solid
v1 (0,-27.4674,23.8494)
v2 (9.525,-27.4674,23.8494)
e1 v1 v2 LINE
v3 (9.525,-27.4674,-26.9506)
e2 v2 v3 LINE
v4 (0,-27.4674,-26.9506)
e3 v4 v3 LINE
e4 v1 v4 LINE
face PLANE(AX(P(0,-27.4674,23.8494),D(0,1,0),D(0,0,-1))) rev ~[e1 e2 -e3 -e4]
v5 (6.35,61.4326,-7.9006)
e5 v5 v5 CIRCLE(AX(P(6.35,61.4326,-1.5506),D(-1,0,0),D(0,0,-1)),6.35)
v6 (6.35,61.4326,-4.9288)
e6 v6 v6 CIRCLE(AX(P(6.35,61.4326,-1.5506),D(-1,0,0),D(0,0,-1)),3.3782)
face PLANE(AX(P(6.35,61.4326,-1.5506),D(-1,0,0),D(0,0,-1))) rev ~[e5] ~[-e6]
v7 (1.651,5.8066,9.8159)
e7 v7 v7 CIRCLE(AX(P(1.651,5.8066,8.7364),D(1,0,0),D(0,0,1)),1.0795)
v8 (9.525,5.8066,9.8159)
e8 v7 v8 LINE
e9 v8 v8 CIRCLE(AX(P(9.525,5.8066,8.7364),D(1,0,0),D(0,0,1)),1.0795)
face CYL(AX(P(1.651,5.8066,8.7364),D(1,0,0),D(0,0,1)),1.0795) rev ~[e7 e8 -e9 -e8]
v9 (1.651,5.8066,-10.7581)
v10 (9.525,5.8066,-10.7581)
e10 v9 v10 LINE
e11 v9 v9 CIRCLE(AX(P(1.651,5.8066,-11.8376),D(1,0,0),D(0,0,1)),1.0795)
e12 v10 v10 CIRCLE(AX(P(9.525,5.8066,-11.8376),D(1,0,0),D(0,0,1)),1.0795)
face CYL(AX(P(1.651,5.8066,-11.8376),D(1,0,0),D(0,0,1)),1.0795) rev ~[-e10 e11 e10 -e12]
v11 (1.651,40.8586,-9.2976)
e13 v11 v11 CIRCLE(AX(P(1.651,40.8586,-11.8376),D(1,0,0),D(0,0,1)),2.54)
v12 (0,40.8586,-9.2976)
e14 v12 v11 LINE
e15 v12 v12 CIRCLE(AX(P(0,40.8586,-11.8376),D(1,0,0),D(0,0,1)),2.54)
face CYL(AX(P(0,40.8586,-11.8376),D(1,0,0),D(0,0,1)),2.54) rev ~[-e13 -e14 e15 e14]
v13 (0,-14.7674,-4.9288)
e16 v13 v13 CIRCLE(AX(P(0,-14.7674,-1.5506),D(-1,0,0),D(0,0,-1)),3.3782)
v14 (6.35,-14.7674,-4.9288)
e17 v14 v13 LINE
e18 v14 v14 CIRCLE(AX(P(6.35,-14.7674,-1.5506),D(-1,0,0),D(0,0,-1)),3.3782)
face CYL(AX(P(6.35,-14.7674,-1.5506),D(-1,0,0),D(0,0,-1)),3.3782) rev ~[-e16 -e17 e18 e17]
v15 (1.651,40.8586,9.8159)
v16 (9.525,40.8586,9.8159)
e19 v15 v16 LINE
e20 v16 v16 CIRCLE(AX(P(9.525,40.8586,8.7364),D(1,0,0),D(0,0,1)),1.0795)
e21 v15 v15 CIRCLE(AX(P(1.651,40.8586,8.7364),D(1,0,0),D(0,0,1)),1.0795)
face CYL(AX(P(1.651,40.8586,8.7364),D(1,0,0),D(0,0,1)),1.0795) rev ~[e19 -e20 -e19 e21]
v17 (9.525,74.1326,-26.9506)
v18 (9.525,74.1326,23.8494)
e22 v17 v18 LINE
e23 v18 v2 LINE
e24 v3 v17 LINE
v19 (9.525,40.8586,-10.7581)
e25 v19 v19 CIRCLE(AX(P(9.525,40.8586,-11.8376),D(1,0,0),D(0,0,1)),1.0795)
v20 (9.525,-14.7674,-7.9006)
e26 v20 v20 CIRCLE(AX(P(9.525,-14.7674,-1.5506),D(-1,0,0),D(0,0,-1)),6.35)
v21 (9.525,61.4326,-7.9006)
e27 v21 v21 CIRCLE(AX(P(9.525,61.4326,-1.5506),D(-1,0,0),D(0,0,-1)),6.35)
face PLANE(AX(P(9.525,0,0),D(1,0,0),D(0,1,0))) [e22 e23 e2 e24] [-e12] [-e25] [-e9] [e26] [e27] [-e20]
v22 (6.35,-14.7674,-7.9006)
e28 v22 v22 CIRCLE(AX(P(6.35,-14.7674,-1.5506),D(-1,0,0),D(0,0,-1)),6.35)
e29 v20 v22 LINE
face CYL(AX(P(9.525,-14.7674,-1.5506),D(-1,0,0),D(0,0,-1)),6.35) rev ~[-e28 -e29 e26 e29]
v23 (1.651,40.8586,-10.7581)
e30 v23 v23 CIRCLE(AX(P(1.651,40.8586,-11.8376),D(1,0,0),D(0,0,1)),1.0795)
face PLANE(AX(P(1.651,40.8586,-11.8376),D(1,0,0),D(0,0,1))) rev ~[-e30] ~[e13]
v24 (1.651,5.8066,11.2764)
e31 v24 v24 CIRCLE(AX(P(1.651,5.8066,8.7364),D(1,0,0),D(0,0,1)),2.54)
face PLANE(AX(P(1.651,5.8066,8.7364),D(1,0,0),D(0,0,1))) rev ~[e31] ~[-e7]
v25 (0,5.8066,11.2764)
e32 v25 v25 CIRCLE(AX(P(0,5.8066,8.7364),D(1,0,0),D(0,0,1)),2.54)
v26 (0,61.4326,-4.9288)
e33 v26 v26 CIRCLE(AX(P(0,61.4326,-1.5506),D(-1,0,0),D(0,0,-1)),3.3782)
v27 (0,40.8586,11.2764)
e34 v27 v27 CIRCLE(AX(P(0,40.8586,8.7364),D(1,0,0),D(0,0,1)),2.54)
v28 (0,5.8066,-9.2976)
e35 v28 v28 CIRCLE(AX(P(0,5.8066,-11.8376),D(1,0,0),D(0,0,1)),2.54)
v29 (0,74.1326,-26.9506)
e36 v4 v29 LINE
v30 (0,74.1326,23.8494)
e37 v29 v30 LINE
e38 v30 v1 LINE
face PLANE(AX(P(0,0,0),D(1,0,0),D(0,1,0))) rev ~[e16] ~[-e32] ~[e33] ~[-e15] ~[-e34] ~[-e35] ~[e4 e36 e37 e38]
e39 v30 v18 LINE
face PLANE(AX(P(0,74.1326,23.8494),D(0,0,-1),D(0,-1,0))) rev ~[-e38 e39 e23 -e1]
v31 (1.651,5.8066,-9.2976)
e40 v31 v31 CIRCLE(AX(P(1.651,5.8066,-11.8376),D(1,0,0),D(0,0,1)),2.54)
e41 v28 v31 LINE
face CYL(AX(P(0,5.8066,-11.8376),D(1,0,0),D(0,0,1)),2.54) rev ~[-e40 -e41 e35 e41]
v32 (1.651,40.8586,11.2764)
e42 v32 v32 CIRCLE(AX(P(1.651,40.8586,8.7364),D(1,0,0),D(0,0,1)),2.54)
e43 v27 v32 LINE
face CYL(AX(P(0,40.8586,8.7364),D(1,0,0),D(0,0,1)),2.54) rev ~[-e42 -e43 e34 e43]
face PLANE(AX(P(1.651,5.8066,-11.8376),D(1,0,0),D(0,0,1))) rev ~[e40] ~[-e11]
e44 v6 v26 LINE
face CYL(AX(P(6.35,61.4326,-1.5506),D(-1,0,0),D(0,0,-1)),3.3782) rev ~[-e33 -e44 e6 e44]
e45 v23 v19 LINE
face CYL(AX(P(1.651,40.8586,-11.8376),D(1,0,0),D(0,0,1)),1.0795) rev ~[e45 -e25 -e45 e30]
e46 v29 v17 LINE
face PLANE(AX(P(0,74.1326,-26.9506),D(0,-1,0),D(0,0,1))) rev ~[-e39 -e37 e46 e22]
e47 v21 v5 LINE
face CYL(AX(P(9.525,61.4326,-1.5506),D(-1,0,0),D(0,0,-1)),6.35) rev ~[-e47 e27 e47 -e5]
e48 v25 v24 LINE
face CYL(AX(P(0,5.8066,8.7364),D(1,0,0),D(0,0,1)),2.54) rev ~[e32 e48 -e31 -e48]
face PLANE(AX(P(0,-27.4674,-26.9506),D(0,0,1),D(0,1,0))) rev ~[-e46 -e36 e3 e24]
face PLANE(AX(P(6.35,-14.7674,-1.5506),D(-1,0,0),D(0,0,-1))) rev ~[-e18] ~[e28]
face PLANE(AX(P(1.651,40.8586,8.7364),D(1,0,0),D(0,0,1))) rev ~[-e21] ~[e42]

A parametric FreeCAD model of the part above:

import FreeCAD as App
import Part
import Sketcher

V = App.Vector
Q = App.Units.Quantity

doc = App.newDocument("Part")
params = doc.addObject("Spreadsheet::Sheet", "Params")
for row, (alias, value) in enumerate([
    ("sketch1_width", "4 in"),
    ("sketch1_height", "2 in"),
    ("pad1_length", "0.375 in"),
    ("sketch2_diameter", "0.266 in"),
    ("hole_diameter", "0.266 in"),
    ("hole_cbore_diameter", "0.5 in"),
    ("hole_cbore_depth", "0.125 in"),
    ("sketch3_diameter", "0.266 in"),
    ("hole2_diameter", "0.266 in"),
    ("hole2_cbore_diameter", "0.5 in"),
    ("hole2_cbore_depth", "0.125 in"),
    ("sketch4_diameter", "0.085 in"),
    ("hole3_diameter", "0.085 in"),
    ("hole3_cbore_diameter", "0.2 in"),
    ("hole3_cbore_depth", "0.065 in"),
    ("sketch5_diameter", "0.085 in"),
    ("hole4_diameter", "0.085 in"),
    ("hole4_cbore_diameter", "0.2 in"),
    ("hole4_cbore_depth", "0.065 in"),
    ("sketch6_diameter", "0.085 in"),
    ("hole5_diameter", "0.085 in"),
    ("hole5_cbore_diameter", "0.2 in"),
    ("hole5_cbore_depth", "0.065 in"),
    ("sketch7_diameter", "0.085 in"),
    ("hole6_diameter", "0.085 in"),
    ("hole6_cbore_diameter", "0.2 in"),
    ("hole6_cbore_depth", "0.065 in"),
], start=1):
    params.set(f"A{row}", alias)
    params.set(f"B{row}", "=" + value)
    params.setAlias(f"B{row}", alias)

body = doc.addObject("PartDesign::Body", "Body")

sketch1 = body.newObject("Sketcher::SketchObject", "Sketch")
sketch1.AttachmentSupport = (doc.getObject("YZ_Plane"), [""])
sketch1.MapMode = "FlatFace"
sketch1.addGeometry(Part.LineSegment(V(74.1326, -26.9506, 0), V(74.1326, 23.8494, 0)), False)
sketch1.addGeometry(Part.LineSegment(V(74.1326, 23.8494, 0), V(-27.4674, 23.8494, 0)), False)
sketch1.addGeometry(Part.LineSegment(V(-27.4674, 23.8494, 0), V(-27.4674, -26.9506, 0)), False)
sketch1.addGeometry(Part.LineSegment(V(-27.4674, -26.9506, 0), V(74.1326, -26.9506, 0)), False)
sketch1.addConstraint(Sketcher.Constraint("Coincident", 0, 2, 1, 1))
sketch1.addConstraint(Sketcher.Constraint("Coincident", 1, 2, 2, 1))
sketch1.addConstraint(Sketcher.Constraint("Coincident", 2, 2, 3, 1))
sketch1.addConstraint(Sketcher.Constraint("Coincident", 3, 2, 0, 1))
sketch1.addConstraint(Sketcher.Constraint("Vertical", 0))
sketch1.addConstraint(Sketcher.Constraint("Horizontal", 1))
sketch1.addConstraint(Sketcher.Constraint("Vertical", 2))
sketch1.addConstraint(Sketcher.Constraint("Horizontal", 3))
sketch1.addConstraint(Sketcher.Constraint("DistanceX", 1, 2, 1, 1, Q("4 in")))
sketch1.addConstraint(Sketcher.Constraint("DistanceY", 0, 1, 0, 2, Q("2 in")))
sketch1.addConstraint(Sketcher.Constraint("DistanceX", -1, 1, 0, 2, Q("2.9186 in")))
sketch1.addConstraint(Sketcher.Constraint("DistanceY", -1, 1, 0, 2, 23.8494))
sketch1.setExpression("Constraints[8]", "Params.sketch1_width")
sketch1.setExpression("Constraints[9]", "Params.sketch1_height")
pad1 = body.newObject("PartDesign::Pad", "Pad")
pad1.Profile = sketch1
pad1.setExpression("Length", "Params.pad1_length")

sketch2 = body.newObject("Sketcher::SketchObject", "Sketch001")
sketch2.AttachmentSupport = (doc.getObject("YZ_Plane"), [""])
sketch2.MapMode = "FlatFace"
sketch2.AttachmentOffset = App.Placement(V(0, 0, 0.375 * 25.4), App.Rotation())
sketch2.addGeometry(Part.Circle(V(61.4326, -1.5506, 0), V(0, 0, 1), 3.3782), False)
sketch2.addConstraint(Sketcher.Constraint("Diameter", 0, Q("0.266 in")))
sketch2.addConstraint(Sketcher.Constraint("DistanceX", -1, 1, 0, 3, Q("2.4186 in")))
sketch2.addConstraint(Sketcher.Constraint("DistanceY", 0, 3, -1, 1, 1.5506))
sketch2.setExpression("Constraints[0]", "Params.sketch2_diameter")
doc.recompute()
hole = body.newObject("PartDesign::Hole", "Hole")
hole.Profile = sketch2
hole.ThreadType = "None"
hole.setExpression("Diameter", "Params.hole_diameter")
hole.DepthType = "ThroughAll"
hole.HoleCutType = "Counterbore"
hole.setExpression("HoleCutDiameter", "Params.hole_cbore_diameter")
hole.setExpression("HoleCutDepth", "Params.hole_cbore_depth")

sketch3 = body.newObject("Sketcher::SketchObject", "Sketch002")
sketch3.AttachmentSupport = (doc.getObject("YZ_Plane"), [""])
sketch3.MapMode = "FlatFace"
sketch3.AttachmentOffset = App.Placement(V(0, 0, 0.375 * 25.4), App.Rotation())
sketch3.addGeometry(Part.Circle(V(-14.7674, -1.5506, 0), V(0, 0, 1), 3.3782), False)
sketch3.addConstraint(Sketcher.Constraint("Diameter", 0, Q("0.266 in")))
sketch3.addConstraint(Sketcher.Constraint("DistanceX", 0, 3, -1, 1, Q("0.5814 in")))
sketch3.addConstraint(Sketcher.Constraint("DistanceY", 0, 3, -1, 1, 1.5506))
sketch3.setExpression("Constraints[0]", "Params.sketch3_diameter")
doc.recompute()
hole2 = body.newObject("PartDesign::Hole", "Hole001")
hole2.Profile = sketch3
hole2.ThreadType = "None"
hole2.setExpression("Diameter", "Params.hole2_diameter")
hole2.DepthType = "ThroughAll"
hole2.HoleCutType = "Counterbore"
hole2.setExpression("HoleCutDiameter", "Params.hole2_cbore_diameter")
hole2.setExpression("HoleCutDepth", "Params.hole2_cbore_depth")

sketch4 = body.newObject("Sketcher::SketchObject", "Sketch003")
sketch4.AttachmentSupport = (doc.getObject("YZ_Plane"), [""])
sketch4.MapMode = "FlatFace"
sketch4.addGeometry(Part.Circle(V(40.8586, 8.7364, 0), V(0, 0, 1), 1.0795), False)
sketch4.addConstraint(Sketcher.Constraint("Diameter", 0, Q("0.085 in")))
sketch4.addConstraint(Sketcher.Constraint("DistanceX", -1, 1, 0, 3, Q("1.6086 in")))
sketch4.addConstraint(Sketcher.Constraint("DistanceY", -1, 1, 0, 3, 8.7364))
sketch4.setExpression("Constraints[0]", "Params.sketch4_diameter")
doc.recompute()
hole3 = body.newObject("PartDesign::Hole", "Hole002")
hole3.Profile = sketch4
hole3.ThreadType = "None"
hole3.setExpression("Diameter", "Params.hole3_diameter")
hole3.DepthType = "ThroughAll"
hole3.HoleCutType = "Counterbore"
hole3.setExpression("HoleCutDiameter", "Params.hole3_cbore_diameter")
hole3.setExpression("HoleCutDepth", "Params.hole3_cbore_depth")
hole3.Reversed = True

sketch5 = body.newObject("Sketcher::SketchObject", "Sketch004")
sketch5.AttachmentSupport = (doc.getObject("YZ_Plane"), [""])
sketch5.MapMode = "FlatFace"
sketch5.addGeometry(Part.Circle(V(5.8066, 8.7364, 0), V(0, 0, 1), 1.0795), False)
sketch5.addConstraint(Sketcher.Constraint("Diameter", 0, Q("0.085 in")))
sketch5.addConstraint(Sketcher.Constraint("DistanceX", -1, 1, 0, 3, Q("0.2286 in")))
sketch5.addConstraint(Sketcher.Constraint("DistanceY", -1, 1, 0, 3, 8.7364))
sketch5.setExpression("Constraints[0]", "Params.sketch5_diameter")
doc.recompute()
hole4 = body.newObject("PartDesign::Hole", "Hole003")
hole4.Profile = sketch5
hole4.ThreadType = "None"
hole4.setExpression("Diameter", "Params.hole4_diameter")
hole4.DepthType = "ThroughAll"
hole4.HoleCutType = "Counterbore"
hole4.setExpression("HoleCutDiameter", "Params.hole4_cbore_diameter")
hole4.setExpression("HoleCutDepth", "Params.hole4_cbore_depth")
hole4.Reversed = True

sketch6 = body.newObject("Sketcher::SketchObject", "Sketch005")
sketch6.AttachmentSupport = (doc.getObject("YZ_Plane"), [""])
sketch6.MapMode = "FlatFace"
sketch6.addGeometry(Part.Circle(V(40.8586, -11.8376, 0), V(0, 0, 1), 1.0795), False)
sketch6.addConstraint(Sketcher.Constraint("Diameter", 0, Q("0.085 in")))
sketch6.addConstraint(Sketcher.Constraint("DistanceX", -1, 1, 0, 3, Q("1.6086 in")))
sketch6.addConstraint(Sketcher.Constraint("DistanceY", 0, 3, -1, 1, 11.8376))
sketch6.setExpression("Constraints[0]", "Params.sketch6_diameter")
doc.recompute()
hole5 = body.newObject("PartDesign::Hole", "Hole004")
hole5.Profile = sketch6
hole5.ThreadType = "None"
hole5.setExpression("Diameter", "Params.hole5_diameter")
hole5.DepthType = "ThroughAll"
hole5.HoleCutType = "Counterbore"
hole5.setExpression("HoleCutDiameter", "Params.hole5_cbore_diameter")
hole5.setExpression("HoleCutDepth", "Params.hole5_cbore_depth")
hole5.Reversed = True

sketch7 = body.newObject("Sketcher::SketchObject", "Sketch006")
sketch7.AttachmentSupport = (doc.getObject("YZ_Plane"), [""])
sketch7.MapMode = "FlatFace"
sketch7.addGeometry(Part.Circle(V(5.8066, -11.8376, 0), V(0, 0, 1), 1.0795), False)
sketch7.addConstraint(Sketcher.Constraint("Diameter", 0, Q("0.085 in")))
sketch7.addConstraint(Sketcher.Constraint("DistanceX", -1, 1, 0, 3, Q("0.2286 in")))
sketch7.addConstraint(Sketcher.Constraint("DistanceY", 0, 3, -1, 1, 11.8376))
sketch7.setExpression("Constraints[0]", "Params.sketch7_diameter")
doc.recompute()
hole6 = body.newObject("PartDesign::Hole", "Hole005")
hole6.Profile = sketch7
hole6.ThreadType = "None"
hole6.setExpression("Diameter", "Params.hole6_diameter")
hole6.DepthType = "ThroughAll"
hole6.HoleCutType = "Counterbore"
hole6.setExpression("HoleCutDiameter", "Params.hole6_cbore_diameter")
hole6.setExpression("HoleCutDepth", "Params.hole6_cbore_depth")
hole6.Reversed = True

doc.recompute()
